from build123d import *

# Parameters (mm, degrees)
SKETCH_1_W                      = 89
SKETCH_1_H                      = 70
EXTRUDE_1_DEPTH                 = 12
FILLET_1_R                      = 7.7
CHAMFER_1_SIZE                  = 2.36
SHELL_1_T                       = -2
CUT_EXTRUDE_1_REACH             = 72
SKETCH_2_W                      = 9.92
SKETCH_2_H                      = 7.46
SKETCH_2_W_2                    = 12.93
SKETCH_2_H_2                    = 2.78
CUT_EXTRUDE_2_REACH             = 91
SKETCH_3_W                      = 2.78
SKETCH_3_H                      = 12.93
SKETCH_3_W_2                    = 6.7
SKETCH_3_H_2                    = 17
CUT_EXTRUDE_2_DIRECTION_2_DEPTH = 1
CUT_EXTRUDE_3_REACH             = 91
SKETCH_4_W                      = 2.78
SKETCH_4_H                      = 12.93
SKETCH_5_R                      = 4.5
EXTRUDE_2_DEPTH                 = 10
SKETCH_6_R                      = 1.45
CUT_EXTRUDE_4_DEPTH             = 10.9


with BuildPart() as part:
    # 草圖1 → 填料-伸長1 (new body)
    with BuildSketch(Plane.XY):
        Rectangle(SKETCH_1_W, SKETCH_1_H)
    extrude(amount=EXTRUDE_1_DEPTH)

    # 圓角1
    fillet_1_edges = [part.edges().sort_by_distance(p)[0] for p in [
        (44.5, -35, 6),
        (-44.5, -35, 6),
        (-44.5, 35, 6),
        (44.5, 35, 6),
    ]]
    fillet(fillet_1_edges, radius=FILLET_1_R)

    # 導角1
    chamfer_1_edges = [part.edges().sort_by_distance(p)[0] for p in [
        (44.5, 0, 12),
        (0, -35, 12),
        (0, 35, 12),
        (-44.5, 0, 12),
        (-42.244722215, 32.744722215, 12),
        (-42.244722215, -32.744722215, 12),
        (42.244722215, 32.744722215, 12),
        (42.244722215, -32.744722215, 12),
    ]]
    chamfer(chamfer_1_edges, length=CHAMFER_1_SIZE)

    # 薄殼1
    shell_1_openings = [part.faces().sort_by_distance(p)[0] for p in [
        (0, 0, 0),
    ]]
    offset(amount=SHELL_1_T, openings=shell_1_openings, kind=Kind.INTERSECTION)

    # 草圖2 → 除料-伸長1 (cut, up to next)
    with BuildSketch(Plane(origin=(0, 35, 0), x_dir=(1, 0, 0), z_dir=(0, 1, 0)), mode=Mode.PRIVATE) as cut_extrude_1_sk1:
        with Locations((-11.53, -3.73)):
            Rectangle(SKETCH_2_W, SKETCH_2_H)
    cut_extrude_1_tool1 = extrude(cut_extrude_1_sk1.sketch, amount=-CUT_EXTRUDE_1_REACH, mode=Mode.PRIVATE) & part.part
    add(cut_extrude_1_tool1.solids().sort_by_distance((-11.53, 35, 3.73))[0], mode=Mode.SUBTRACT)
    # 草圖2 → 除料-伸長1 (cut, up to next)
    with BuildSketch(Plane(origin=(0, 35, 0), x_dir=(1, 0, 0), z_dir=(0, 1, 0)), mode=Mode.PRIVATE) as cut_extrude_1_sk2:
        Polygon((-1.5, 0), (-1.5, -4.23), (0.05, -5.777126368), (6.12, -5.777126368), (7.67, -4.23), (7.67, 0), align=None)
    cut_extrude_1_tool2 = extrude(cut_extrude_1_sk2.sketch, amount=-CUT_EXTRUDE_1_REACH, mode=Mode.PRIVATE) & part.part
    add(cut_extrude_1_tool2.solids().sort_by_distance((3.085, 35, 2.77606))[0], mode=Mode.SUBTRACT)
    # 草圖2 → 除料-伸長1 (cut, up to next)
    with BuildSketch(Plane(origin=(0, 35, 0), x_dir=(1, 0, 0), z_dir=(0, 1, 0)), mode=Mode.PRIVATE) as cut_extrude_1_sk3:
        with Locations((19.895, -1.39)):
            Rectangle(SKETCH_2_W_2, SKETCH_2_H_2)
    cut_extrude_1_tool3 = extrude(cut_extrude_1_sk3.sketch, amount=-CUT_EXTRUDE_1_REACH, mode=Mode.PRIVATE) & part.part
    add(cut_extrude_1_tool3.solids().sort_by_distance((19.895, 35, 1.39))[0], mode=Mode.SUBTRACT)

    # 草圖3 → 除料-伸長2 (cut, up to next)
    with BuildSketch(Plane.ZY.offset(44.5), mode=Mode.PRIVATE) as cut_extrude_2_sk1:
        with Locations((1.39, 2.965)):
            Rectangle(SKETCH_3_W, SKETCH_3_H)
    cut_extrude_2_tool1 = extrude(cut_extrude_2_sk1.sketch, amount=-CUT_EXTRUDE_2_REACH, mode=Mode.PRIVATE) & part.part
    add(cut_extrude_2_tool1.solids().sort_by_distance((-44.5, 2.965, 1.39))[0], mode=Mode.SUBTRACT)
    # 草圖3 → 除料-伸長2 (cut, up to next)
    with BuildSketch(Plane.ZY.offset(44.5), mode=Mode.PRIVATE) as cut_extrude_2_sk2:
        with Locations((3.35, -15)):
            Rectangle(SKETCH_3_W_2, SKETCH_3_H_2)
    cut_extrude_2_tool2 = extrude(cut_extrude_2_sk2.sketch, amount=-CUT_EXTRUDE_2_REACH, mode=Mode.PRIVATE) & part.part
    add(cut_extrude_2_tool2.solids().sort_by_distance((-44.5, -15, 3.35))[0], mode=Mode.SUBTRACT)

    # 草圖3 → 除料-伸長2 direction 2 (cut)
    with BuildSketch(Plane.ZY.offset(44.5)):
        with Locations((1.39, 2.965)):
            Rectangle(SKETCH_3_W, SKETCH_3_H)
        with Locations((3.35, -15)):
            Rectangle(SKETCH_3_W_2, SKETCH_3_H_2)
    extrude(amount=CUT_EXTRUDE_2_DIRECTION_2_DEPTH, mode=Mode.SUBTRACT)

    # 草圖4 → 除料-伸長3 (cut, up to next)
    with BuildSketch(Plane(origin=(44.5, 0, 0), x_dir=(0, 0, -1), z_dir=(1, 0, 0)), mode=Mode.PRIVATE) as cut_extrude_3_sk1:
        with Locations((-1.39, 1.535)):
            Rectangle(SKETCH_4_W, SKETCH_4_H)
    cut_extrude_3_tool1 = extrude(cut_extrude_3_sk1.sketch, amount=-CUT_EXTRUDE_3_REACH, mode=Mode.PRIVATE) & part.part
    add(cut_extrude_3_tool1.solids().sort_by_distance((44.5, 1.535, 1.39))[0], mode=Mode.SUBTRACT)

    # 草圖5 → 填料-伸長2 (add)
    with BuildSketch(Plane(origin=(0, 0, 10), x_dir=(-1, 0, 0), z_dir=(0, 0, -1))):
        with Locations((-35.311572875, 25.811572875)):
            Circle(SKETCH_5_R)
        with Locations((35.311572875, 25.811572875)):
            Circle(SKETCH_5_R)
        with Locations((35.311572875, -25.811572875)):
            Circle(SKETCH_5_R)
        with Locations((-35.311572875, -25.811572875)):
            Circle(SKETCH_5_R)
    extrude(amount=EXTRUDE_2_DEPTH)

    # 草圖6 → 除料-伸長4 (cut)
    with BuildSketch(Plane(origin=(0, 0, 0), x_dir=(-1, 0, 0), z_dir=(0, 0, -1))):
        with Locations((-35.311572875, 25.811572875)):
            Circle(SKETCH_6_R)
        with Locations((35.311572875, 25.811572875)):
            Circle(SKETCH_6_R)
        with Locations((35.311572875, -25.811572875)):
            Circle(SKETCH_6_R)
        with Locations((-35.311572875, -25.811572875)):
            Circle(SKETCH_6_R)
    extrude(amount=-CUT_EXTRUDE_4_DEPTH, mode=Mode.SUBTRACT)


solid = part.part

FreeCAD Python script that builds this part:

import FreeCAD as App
import Part
import Sketcher
from FreeCAD import Vector


def edges_at(feature, points):
    """Names of the edges that pass closest to the given points."""
    edges = feature.Shape.Edges
    near = lambda p: min(range(len(edges)), key=lambda i: edges[i].distToShape(Part.Vertex(*p))[0])
    return sorted({f"Edge{near(p) + 1}" for p in points})


def faces_at(feature, points):
    """Names of the faces that lie closest to the given points."""
    faces = feature.Shape.Faces
    near = lambda p: min(range(len(faces)), key=lambda i: faces[i].distToShape(Part.Vertex(*p))[0])
    return sorted({f"Face{near(p) + 1}" for p in points})


def add_polygon(sketch, points):
    """Adds a closed chain of lines whose ends are joined by coincident constraints."""
    first, n = sketch.GeometryCount, len(points)
    for a, b in zip(points, points[1:] + points[:1]):
        sketch.addGeometry(Part.LineSegment(App.Vector(*a, 0), App.Vector(*b, 0)), False)
    for i in range(n):
        sketch.addConstraint(Sketcher.Constraint("Coincident", first + i, 2, first + (i + 1) % n, 1))

doc = App.newDocument("Part")
body = doc.addObject("PartDesign::Body", "Body")

sketch1 = body.newObject("Sketcher::SketchObject", "Sketch")
sketch1.AttachmentSupport = (doc.getObject("XY_Plane"), [""])
sketch1.MapMode = "FlatFace"
add_polygon(sketch1, [(-44, 35), (-44, -35), (44, -35), (44, 35)])
sketch1.addConstraint(Sketcher.Constraint("Vertical", 0))
sketch1.addConstraint(Sketcher.Constraint("Horizontal", 1))
sketch1.addConstraint(Sketcher.Constraint("Vertical", 2))
sketch1.addConstraint(Sketcher.Constraint("Horizontal", 3))
sketch1.addConstraint(Sketcher.Constraint("Symmetric", 0, 2, 2, 2, -1, 1))
sketch1.addConstraint(Sketcher.Constraint("DistanceX", 1, 1, 1, 2, 89.0))
sketch1.addConstraint(Sketcher.Constraint("DistanceY", 0, 2, 0, 1, 70.0))
pad1 = body.newObject("PartDesign::Pad", "Pad")
pad1.Profile = sketch1
pad1.Length = 12
doc.recompute()

fillet = body.newObject("PartDesign::Fillet", "Fillet")
fillet.Base = (pad1, edges_at(pad1, [
    (44.5, -35, 6),
    (-44.5, -35, 6),
    (-44.5, 35, 6),
    (44.5, 35, 6),
]))
fillet.Radius = 7.7
doc.recompute()

chamfer = body.newObject("PartDesign::Chamfer", "Chamfer")
chamfer.Base = (fillet, edges_at(fillet, [
    (44.5, 0, 12),
    (0, -35, 12),
    (0, 35, 12),
    (-44.5, 0, 12),
    (-42.245, 32.745, 12),
    (-42.245, -32.745, 12),
    (42.245, 32.745, 12),
    (42.245, -32.745, 12),
]))
chamfer.Size = 2.36
doc.recompute()

thickness = body.newObject("PartDesign::Thickness", "Thickness")
thickness.Base = (chamfer, faces_at(chamfer, [(0, 0, 0)]))
thickness.Value = 2
thickness.Reversed = True
thickness.Join = "Intersection"

sketch2 = body.newObject("Sketcher::SketchObject", "Sketch001")
sketch2.AttachmentSupport = (doc.getObject("XZ_Plane"), [""])
sketch2.MapMode = "FlatFace"
sketch2.AttachmentOffset = App.Placement(Vector(0, 0, -35), App.Rotation())
add_polygon(sketch2, [(-16, 0), (-16, 7), (-7, 7), (-7, 0)])
sketch2.addConstraint(Sketcher.Constraint("Vertical", 0))
sketch2.addConstraint(Sketcher.Constraint("Horizontal", 1))
sketch2.addConstraint(Sketcher.Constraint("Vertical", 2))
sketch2.addConstraint(Sketcher.Constraint("Horizontal", 3))
sketch2.addConstraint(Sketcher.Constraint("PointOnObject", 2, 2, -1))
sketch2.addConstraint(Sketcher.Constraint("DistanceX", 1, 1, 1, 2, 9.92))
sketch2.addConstraint(Sketcher.Constraint("DistanceY", 0, 1, 0, 2, 7.46))
sketch2.addConstraint(Sketcher.Constraint("DistanceX", 0, 2, -1, 1, 16.49))
pocket1 = body.newObject("PartDesign::Pocket", "Pocket")
pocket1.Profile = sketch2
pocket1.Type = "UpToFirst"
pocket1.Reversed = True

sketch3 = body.newObject("Sketcher::SketchObject", "Sketch002")
sketch3.AttachmentSupport = (doc.getObject("XZ_Plane"), [""])
sketch3.MapMode = "FlatFace"
sketch3.AttachmentOffset = App.Placement(Vector(0, 0, -35), App.Rotation())
add_polygon(sketch3, [(-1.5, 0), (-1.5, 4.2), (0.1, 5.8), (6.1, 5.8), (7.7, 4.2), (7.7, 0)])
sketch3.addConstraint(Sketcher.Constraint("Vertical", 0))
sketch3.addConstraint(Sketcher.Constraint("Horizontal", 2))
sketch3.addConstraint(Sketcher.Constraint("Vertical", 4))
sketch3.addConstraint(Sketcher.Constraint("Horizontal", 5))
sketch3.addConstraint(Sketcher.Constraint("PointOnObject", 4, 2, -1))
sketch3.addConstraint(Sketcher.Constraint("Horizontal", 0, 2, 3, 2))
sketch3.addConstraint(Sketcher.Constraint("Equal", 1, 3))
sketch3.addConstraint(Sketcher.Constraint("DistanceX", 2, 1, 2, 2, 6.07))
sketch3.addConstraint(Sketcher.Constraint("DistanceX", 5, 2, 5, 1, 9.17))
sketch3.addConstraint(Sketcher.Constraint("DistanceY", 0, 1, 0, 2, 4.23))
sketch3.addConstraint(Sketcher.Constraint("DistanceX", 0, 2, -1, 1, 1.5))
sketch3.addConstraint(Sketcher.Constraint("Distance", 1, 2.19))
pocket2 = body.newObject("PartDesign::Pocket", "Pocket001")
pocket2.Profile = sketch3
pocket2.Type = "UpToFirst"
pocket2.Reversed = True

sketch4 = body.newObject("Sketcher::SketchObject", "Sketch003")
sketch4.AttachmentSupport = (doc.getObject("XZ_Plane"), [""])
sketch4.MapMode = "FlatFace"
sketch4.AttachmentOffset = App.Placement(Vector(0, 0, -35), App.Rotation())
add_polygon(sketch4, [(13.4, 0), (13.4, 2.8), (26.4, 2.8), (26.4, 0)])
sketch4.addConstraint(Sketcher.Constraint("Vertical", 0))
sketch4.addConstraint(Sketcher.Constraint("Horizontal", 1))
sketch4.addConstraint(Sketcher.Constraint("Vertical", 2))
sketch4.addConstraint(Sketcher.Constraint("Horizontal", 3))
sketch4.addConstraint(Sketcher.Constraint("PointOnObject", 2, 2, -1))
sketch4.addConstraint(Sketcher.Constraint("DistanceX", 1, 1, 1, 2, 12.93))
sketch4.addConstraint(Sketcher.Constraint("DistanceY", 0, 1, 0, 2, 2.78))
sketch4.addConstraint(Sketcher.Constraint("DistanceX", -1, 1, 0, 2, 13.43))
pocket3 = body.newObject("PartDesign::Pocket", "Pocket002")
pocket3.Profile = sketch4
pocket3.Type = "UpToFirst"
pocket3.Reversed = True

sketch5 = body.newObject("Sketcher::SketchObject", "Sketch004")
sketch5.AttachmentSupport = (doc.getObject("YZ_Plane"), [""])
sketch5.MapMode = "FlatFace"
sketch5.AttachmentOffset = App.Placement(Vector(0, 0, -44.5), App.Rotation())
add_polygon(sketch5, [(9.4, 0), (-3.5, 0), (-3.5, 2.8), (9.4, 2.8)])
sketch5.addConstraint(Sketcher.Constraint("Horizontal", 0))
sketch5.addConstraint(Sketcher.Constraint("Vertical", 1))
sketch5.addConstraint(Sketcher.Constraint("Horizontal", 2))
sketch5.addConstraint(Sketcher.Constraint("Vertical", 3))
sketch5.addConstraint(Sketcher.Constraint("PointOnObject", 0, 2, -1))
sketch5.addConstraint(Sketcher.Constraint("DistanceX", 0, 2, 0, 1, 12.93))
sketch5.addConstraint(Sketcher.Constraint("DistanceY", 1, 1, 1, 2, 2.78))
sketch5.addConstraint(Sketcher.Constraint("DistanceX", 0, 2, -1, 1, 3.5))
pocket4 = body.newObject("PartDesign::Pocket", "Pocket003")
pocket4.Profile = sketch5
pocket4.Type = "UpToFirst"
pocket4.Reversed = True

sketch6 = body.newObject("Sketcher::SketchObject", "Sketch005")
sketch6.AttachmentSupport = (doc.getObject("YZ_Plane"), [""])
sketch6.MapMode = "FlatFace"
sketch6.AttachmentOffset = App.Placement(Vector(0, 0, -44.5), App.Rotation())
add_polygon(sketch6, [(-6, 0), (-24, 0), (-24, 7), (-6, 7)])
sketch6.addConstraint(Sketcher.Constraint("Horizontal", 0))
sketch6.addConstraint(Sketcher.Constraint("Vertical", 1))
sketch6.addConstraint(Sketcher.Constraint("Horizontal", 2))
sketch6.addConstraint(Sketcher.Constraint("Vertical", 3))
sketch6.addConstraint(Sketcher.Constraint("PointOnObject", 0, 2, -1))
sketch6.addConstraint(Sketcher.Constraint("DistanceX", 0, 2, 0, 1, 17.0))
sketch6.addConstraint(Sketcher.Constraint("DistanceY", 1, 1, 1, 2, 6.7))
sketch6.addConstraint(Sketcher.Constraint("DistanceX", 0, 2, -1, 1, 23.5))
pocket5 = body.newObject("PartDesign::Pocket", "Pocket004")
pocket5.Profile = sketch6
pocket5.Type = "UpToFirst"
pocket5.Reversed = True

sketch7 = body.newObject("Sketcher::SketchObject", "Sketch006")
sketch7.AttachmentSupport = (doc.getObject("YZ_Plane"), [""])
sketch7.MapMode = "FlatFace"
sketch7.AttachmentOffset = App.Placement(Vector(0, 0, -44.5), App.Rotation())
add_polygon(sketch7, [(9.4, 0), (-3.5, 0), (-3.5, 2.8), (9.4, 2.8)])
add_polygon(sketch7, [(-6.5, 0), (-23.5, 0), (-23.5, 6.7), (-6.5, 6.7)])
sketch7.addConstraint(Sketcher.Constraint("Horizontal", 0))
sketch7.addConstraint(Sketcher.Constraint("Vertical", 1))
sketch7.addConstraint(Sketcher.Constraint("Horizontal", 2))
sketch7.addConstraint(Sketcher.Constraint("Vertical", 3))
sketch7.addConstraint(Sketcher.Constraint("Horizontal", 4))
sketch7.addConstraint(Sketcher.Constraint("Vertical", 5))
sketch7.addConstraint(Sketcher.Constraint("Horizontal", 6))
sketch7.addConstraint(Sketcher.Constraint("Vertical", 7))
sketch7.addConstraint(Sketcher.Constraint("PointOnObject", 0, 2, -1))
sketch7.addConstraint(Sketcher.Constraint("PointOnObject", 4, 2, -1))
sketch7.addConstraint(Sketcher.Constraint("DistanceX", 4, 2, 4, 1, 17.0))
sketch7.addConstraint(Sketcher.Constraint("DistanceY", 5, 1, 5, 2, 6.7))
sketch7.addConstraint(Sketcher.Constraint("DistanceX", 4, 2, 0, 2, 20.0))
sketch7.addConstraint(Sketcher.Constraint("DistanceX", 0, 2, 0, 1, 12.93))
sketch7.addConstraint(Sketcher.Constraint("DistanceY", 1, 1, 1, 2, 2.78))
sketch7.addConstraint(Sketcher.Constraint("DistanceX", 0, 2, -1, 1, 3.5))
pocket6 = body.newObject("PartDesign::Pocket", "Pocket005")
pocket6.Profile = sketch7
pocket6.Length = 1

sketch8 = body.newObject("Sketcher::SketchObject", "Sketch007")
sketch8.AttachmentSupport = (doc.getObject("YZ_Plane"), [""])
sketch8.MapMode = "FlatFace"
sketch8.AttachmentOffset = App.Placement(Vector(0, 0, 44.5), App.Rotation())
add_polygon(sketch8, [(8, 2.8), (-4.9, 2.8), (-4.9, 0), (8, 0)])
sketch8.addConstraint(Sketcher.Constraint("Horizontal", 0))
sketch8.addConstraint(Sketcher.Constraint("Vertical", 1))
sketch8.addConstraint(Sketcher.Constraint("Horizontal", 2))
sketch8.addConstraint(Sketcher.Constraint("Vertical", 3))
sketch8.addConstraint(Sketcher.Constraint("PointOnObject", 1, 2, -1))
sketch8.addConstraint(Sketcher.Constraint("DistanceX", -1, 1, 2, 2, 8.0))
sketch8.addConstraint(Sketcher.Constraint("DistanceX", 0, 2, 0, 1, 12.93))
sketch8.addConstraint(Sketcher.Constraint("DistanceY", 1, 2, 1, 1, 2.78))
pocket7 = body.newObject("PartDesign::Pocket", "Pocket006")
pocket7.Profile = sketch8
pocket7.Type = "UpToFirst"

sketch9 = body.newObject("Sketcher::SketchObject", "Sketch008")
sketch9.AttachmentSupport = (doc.getObject("XY_Plane"), [""])
sketch9.MapMode = "FlatFace"
sketch9.AttachmentOffset = App.Placement(Vector(0, 0, 10), App.Rotation())
sketch9.addGeometry(Part.Circle(Vector(35.3, 25.8, 0), Vector(0, 0, 1), 4.5), False)
sketch9.addGeometry(Part.Circle(Vector(-35.3, 25.8, 0), Vector(0, 0, 1), 4.5), False)
sketch9.addGeometry(Part.Circle(Vector(-35.3, -25.8, 0), Vector(0, 0, 1), 4.5), False)
sketch9.addGeometry(Part.Circle(Vector(35.3, -25.8, 0), Vector(0, 0, 1), 4.5), False)
sketch9.addConstraint(Sketcher.Constraint("Equal", 0, 1))
sketch9.addConstraint(Sketcher.Constraint("Equal", 1, 2))
sketch9.addConstraint(Sketcher.Constraint("Equal", 2, 3))
sketch9.addConstraint(Sketcher.Constraint("Symmetric", 0, 3, 2, 3, -1, 1))
sketch9.addConstraint(Sketcher.Constraint("Symmetric", 1, 3, 3, 3, -1, 1))
sketch9.addConstraint(Sketcher.Constraint("Symmetric", 0, 3, 1, 3, -2))
sketch9.addConstraint(Sketcher.Constraint("Diameter", 0, 9.0))
sketch9.addConstraint(Sketcher.Constraint("DistanceX", -1, 1, 0, 3, 35.311573))
sketch9.addConstraint(Sketcher.Constraint("DistanceY", -1, 1, 0, 3, 25.811573))
pad2 = body.newObject("PartDesign::Pad", "Pad001")
pad2.Profile = sketch9
pad2.Length = 10
pad2.Reversed = True

sketch10 = body.newObject("Sketcher::SketchObject", "Sketch009")
sketch10.AttachmentSupport = (doc.getObject("XY_Plane"), [""])
sketch10.MapMode = "FlatFace"
sketch10.addGeometry(Part.Circle(Vector(35.3, 25.8, 0), Vector(0, 0, 1), 1.4), False)
sketch10.addGeometry(Part.Circle(Vector(-35.3, 25.8, 0), Vector(0, 0, 1), 1.4), False)
sketch10.addGeometry(Part.Circle(Vector(-35.3, -25.8, 0), Vector(0, 0, 1), 1.4), False)
sketch10.addGeometry(Part.Circle(Vector(35.3, -25.8, 0), Vector(0, 0, 1), 1.4), False)
sketch10.addConstraint(Sketcher.Constraint("Equal", 0, 1))
sketch10.addConstraint(Sketcher.Constraint("Equal", 1, 2))
sketch10.addConstraint(Sketcher.Constraint("Equal", 2, 3))
sketch10.addConstraint(Sketcher.Constraint("Symmetric", 0, 3, 2, 3, -1, 1))
sketch10.addConstraint(Sketcher.Constraint("Symmetric", 1, 3, 3, 3, -1, 1))
sketch10.addConstraint(Sketcher.Constraint("Symmetric", 0, 3, 1, 3, -2))
sketch10.addConstraint(Sketcher.Constraint("Diameter", 0, 2.9))
sketch10.addConstraint(Sketcher.Constraint("DistanceX", -1, 1, 0, 3, 35.311573))
sketch10.addConstraint(Sketcher.Constraint("DistanceY", -1, 1, 0, 3, 25.811573))
pocket8 = body.newObject("PartDesign::Pocket", "Pocket007")
pocket8.Profile = sketch10
pocket8.Length = 10.9
pocket8.Reversed = True

doc.recompute()
